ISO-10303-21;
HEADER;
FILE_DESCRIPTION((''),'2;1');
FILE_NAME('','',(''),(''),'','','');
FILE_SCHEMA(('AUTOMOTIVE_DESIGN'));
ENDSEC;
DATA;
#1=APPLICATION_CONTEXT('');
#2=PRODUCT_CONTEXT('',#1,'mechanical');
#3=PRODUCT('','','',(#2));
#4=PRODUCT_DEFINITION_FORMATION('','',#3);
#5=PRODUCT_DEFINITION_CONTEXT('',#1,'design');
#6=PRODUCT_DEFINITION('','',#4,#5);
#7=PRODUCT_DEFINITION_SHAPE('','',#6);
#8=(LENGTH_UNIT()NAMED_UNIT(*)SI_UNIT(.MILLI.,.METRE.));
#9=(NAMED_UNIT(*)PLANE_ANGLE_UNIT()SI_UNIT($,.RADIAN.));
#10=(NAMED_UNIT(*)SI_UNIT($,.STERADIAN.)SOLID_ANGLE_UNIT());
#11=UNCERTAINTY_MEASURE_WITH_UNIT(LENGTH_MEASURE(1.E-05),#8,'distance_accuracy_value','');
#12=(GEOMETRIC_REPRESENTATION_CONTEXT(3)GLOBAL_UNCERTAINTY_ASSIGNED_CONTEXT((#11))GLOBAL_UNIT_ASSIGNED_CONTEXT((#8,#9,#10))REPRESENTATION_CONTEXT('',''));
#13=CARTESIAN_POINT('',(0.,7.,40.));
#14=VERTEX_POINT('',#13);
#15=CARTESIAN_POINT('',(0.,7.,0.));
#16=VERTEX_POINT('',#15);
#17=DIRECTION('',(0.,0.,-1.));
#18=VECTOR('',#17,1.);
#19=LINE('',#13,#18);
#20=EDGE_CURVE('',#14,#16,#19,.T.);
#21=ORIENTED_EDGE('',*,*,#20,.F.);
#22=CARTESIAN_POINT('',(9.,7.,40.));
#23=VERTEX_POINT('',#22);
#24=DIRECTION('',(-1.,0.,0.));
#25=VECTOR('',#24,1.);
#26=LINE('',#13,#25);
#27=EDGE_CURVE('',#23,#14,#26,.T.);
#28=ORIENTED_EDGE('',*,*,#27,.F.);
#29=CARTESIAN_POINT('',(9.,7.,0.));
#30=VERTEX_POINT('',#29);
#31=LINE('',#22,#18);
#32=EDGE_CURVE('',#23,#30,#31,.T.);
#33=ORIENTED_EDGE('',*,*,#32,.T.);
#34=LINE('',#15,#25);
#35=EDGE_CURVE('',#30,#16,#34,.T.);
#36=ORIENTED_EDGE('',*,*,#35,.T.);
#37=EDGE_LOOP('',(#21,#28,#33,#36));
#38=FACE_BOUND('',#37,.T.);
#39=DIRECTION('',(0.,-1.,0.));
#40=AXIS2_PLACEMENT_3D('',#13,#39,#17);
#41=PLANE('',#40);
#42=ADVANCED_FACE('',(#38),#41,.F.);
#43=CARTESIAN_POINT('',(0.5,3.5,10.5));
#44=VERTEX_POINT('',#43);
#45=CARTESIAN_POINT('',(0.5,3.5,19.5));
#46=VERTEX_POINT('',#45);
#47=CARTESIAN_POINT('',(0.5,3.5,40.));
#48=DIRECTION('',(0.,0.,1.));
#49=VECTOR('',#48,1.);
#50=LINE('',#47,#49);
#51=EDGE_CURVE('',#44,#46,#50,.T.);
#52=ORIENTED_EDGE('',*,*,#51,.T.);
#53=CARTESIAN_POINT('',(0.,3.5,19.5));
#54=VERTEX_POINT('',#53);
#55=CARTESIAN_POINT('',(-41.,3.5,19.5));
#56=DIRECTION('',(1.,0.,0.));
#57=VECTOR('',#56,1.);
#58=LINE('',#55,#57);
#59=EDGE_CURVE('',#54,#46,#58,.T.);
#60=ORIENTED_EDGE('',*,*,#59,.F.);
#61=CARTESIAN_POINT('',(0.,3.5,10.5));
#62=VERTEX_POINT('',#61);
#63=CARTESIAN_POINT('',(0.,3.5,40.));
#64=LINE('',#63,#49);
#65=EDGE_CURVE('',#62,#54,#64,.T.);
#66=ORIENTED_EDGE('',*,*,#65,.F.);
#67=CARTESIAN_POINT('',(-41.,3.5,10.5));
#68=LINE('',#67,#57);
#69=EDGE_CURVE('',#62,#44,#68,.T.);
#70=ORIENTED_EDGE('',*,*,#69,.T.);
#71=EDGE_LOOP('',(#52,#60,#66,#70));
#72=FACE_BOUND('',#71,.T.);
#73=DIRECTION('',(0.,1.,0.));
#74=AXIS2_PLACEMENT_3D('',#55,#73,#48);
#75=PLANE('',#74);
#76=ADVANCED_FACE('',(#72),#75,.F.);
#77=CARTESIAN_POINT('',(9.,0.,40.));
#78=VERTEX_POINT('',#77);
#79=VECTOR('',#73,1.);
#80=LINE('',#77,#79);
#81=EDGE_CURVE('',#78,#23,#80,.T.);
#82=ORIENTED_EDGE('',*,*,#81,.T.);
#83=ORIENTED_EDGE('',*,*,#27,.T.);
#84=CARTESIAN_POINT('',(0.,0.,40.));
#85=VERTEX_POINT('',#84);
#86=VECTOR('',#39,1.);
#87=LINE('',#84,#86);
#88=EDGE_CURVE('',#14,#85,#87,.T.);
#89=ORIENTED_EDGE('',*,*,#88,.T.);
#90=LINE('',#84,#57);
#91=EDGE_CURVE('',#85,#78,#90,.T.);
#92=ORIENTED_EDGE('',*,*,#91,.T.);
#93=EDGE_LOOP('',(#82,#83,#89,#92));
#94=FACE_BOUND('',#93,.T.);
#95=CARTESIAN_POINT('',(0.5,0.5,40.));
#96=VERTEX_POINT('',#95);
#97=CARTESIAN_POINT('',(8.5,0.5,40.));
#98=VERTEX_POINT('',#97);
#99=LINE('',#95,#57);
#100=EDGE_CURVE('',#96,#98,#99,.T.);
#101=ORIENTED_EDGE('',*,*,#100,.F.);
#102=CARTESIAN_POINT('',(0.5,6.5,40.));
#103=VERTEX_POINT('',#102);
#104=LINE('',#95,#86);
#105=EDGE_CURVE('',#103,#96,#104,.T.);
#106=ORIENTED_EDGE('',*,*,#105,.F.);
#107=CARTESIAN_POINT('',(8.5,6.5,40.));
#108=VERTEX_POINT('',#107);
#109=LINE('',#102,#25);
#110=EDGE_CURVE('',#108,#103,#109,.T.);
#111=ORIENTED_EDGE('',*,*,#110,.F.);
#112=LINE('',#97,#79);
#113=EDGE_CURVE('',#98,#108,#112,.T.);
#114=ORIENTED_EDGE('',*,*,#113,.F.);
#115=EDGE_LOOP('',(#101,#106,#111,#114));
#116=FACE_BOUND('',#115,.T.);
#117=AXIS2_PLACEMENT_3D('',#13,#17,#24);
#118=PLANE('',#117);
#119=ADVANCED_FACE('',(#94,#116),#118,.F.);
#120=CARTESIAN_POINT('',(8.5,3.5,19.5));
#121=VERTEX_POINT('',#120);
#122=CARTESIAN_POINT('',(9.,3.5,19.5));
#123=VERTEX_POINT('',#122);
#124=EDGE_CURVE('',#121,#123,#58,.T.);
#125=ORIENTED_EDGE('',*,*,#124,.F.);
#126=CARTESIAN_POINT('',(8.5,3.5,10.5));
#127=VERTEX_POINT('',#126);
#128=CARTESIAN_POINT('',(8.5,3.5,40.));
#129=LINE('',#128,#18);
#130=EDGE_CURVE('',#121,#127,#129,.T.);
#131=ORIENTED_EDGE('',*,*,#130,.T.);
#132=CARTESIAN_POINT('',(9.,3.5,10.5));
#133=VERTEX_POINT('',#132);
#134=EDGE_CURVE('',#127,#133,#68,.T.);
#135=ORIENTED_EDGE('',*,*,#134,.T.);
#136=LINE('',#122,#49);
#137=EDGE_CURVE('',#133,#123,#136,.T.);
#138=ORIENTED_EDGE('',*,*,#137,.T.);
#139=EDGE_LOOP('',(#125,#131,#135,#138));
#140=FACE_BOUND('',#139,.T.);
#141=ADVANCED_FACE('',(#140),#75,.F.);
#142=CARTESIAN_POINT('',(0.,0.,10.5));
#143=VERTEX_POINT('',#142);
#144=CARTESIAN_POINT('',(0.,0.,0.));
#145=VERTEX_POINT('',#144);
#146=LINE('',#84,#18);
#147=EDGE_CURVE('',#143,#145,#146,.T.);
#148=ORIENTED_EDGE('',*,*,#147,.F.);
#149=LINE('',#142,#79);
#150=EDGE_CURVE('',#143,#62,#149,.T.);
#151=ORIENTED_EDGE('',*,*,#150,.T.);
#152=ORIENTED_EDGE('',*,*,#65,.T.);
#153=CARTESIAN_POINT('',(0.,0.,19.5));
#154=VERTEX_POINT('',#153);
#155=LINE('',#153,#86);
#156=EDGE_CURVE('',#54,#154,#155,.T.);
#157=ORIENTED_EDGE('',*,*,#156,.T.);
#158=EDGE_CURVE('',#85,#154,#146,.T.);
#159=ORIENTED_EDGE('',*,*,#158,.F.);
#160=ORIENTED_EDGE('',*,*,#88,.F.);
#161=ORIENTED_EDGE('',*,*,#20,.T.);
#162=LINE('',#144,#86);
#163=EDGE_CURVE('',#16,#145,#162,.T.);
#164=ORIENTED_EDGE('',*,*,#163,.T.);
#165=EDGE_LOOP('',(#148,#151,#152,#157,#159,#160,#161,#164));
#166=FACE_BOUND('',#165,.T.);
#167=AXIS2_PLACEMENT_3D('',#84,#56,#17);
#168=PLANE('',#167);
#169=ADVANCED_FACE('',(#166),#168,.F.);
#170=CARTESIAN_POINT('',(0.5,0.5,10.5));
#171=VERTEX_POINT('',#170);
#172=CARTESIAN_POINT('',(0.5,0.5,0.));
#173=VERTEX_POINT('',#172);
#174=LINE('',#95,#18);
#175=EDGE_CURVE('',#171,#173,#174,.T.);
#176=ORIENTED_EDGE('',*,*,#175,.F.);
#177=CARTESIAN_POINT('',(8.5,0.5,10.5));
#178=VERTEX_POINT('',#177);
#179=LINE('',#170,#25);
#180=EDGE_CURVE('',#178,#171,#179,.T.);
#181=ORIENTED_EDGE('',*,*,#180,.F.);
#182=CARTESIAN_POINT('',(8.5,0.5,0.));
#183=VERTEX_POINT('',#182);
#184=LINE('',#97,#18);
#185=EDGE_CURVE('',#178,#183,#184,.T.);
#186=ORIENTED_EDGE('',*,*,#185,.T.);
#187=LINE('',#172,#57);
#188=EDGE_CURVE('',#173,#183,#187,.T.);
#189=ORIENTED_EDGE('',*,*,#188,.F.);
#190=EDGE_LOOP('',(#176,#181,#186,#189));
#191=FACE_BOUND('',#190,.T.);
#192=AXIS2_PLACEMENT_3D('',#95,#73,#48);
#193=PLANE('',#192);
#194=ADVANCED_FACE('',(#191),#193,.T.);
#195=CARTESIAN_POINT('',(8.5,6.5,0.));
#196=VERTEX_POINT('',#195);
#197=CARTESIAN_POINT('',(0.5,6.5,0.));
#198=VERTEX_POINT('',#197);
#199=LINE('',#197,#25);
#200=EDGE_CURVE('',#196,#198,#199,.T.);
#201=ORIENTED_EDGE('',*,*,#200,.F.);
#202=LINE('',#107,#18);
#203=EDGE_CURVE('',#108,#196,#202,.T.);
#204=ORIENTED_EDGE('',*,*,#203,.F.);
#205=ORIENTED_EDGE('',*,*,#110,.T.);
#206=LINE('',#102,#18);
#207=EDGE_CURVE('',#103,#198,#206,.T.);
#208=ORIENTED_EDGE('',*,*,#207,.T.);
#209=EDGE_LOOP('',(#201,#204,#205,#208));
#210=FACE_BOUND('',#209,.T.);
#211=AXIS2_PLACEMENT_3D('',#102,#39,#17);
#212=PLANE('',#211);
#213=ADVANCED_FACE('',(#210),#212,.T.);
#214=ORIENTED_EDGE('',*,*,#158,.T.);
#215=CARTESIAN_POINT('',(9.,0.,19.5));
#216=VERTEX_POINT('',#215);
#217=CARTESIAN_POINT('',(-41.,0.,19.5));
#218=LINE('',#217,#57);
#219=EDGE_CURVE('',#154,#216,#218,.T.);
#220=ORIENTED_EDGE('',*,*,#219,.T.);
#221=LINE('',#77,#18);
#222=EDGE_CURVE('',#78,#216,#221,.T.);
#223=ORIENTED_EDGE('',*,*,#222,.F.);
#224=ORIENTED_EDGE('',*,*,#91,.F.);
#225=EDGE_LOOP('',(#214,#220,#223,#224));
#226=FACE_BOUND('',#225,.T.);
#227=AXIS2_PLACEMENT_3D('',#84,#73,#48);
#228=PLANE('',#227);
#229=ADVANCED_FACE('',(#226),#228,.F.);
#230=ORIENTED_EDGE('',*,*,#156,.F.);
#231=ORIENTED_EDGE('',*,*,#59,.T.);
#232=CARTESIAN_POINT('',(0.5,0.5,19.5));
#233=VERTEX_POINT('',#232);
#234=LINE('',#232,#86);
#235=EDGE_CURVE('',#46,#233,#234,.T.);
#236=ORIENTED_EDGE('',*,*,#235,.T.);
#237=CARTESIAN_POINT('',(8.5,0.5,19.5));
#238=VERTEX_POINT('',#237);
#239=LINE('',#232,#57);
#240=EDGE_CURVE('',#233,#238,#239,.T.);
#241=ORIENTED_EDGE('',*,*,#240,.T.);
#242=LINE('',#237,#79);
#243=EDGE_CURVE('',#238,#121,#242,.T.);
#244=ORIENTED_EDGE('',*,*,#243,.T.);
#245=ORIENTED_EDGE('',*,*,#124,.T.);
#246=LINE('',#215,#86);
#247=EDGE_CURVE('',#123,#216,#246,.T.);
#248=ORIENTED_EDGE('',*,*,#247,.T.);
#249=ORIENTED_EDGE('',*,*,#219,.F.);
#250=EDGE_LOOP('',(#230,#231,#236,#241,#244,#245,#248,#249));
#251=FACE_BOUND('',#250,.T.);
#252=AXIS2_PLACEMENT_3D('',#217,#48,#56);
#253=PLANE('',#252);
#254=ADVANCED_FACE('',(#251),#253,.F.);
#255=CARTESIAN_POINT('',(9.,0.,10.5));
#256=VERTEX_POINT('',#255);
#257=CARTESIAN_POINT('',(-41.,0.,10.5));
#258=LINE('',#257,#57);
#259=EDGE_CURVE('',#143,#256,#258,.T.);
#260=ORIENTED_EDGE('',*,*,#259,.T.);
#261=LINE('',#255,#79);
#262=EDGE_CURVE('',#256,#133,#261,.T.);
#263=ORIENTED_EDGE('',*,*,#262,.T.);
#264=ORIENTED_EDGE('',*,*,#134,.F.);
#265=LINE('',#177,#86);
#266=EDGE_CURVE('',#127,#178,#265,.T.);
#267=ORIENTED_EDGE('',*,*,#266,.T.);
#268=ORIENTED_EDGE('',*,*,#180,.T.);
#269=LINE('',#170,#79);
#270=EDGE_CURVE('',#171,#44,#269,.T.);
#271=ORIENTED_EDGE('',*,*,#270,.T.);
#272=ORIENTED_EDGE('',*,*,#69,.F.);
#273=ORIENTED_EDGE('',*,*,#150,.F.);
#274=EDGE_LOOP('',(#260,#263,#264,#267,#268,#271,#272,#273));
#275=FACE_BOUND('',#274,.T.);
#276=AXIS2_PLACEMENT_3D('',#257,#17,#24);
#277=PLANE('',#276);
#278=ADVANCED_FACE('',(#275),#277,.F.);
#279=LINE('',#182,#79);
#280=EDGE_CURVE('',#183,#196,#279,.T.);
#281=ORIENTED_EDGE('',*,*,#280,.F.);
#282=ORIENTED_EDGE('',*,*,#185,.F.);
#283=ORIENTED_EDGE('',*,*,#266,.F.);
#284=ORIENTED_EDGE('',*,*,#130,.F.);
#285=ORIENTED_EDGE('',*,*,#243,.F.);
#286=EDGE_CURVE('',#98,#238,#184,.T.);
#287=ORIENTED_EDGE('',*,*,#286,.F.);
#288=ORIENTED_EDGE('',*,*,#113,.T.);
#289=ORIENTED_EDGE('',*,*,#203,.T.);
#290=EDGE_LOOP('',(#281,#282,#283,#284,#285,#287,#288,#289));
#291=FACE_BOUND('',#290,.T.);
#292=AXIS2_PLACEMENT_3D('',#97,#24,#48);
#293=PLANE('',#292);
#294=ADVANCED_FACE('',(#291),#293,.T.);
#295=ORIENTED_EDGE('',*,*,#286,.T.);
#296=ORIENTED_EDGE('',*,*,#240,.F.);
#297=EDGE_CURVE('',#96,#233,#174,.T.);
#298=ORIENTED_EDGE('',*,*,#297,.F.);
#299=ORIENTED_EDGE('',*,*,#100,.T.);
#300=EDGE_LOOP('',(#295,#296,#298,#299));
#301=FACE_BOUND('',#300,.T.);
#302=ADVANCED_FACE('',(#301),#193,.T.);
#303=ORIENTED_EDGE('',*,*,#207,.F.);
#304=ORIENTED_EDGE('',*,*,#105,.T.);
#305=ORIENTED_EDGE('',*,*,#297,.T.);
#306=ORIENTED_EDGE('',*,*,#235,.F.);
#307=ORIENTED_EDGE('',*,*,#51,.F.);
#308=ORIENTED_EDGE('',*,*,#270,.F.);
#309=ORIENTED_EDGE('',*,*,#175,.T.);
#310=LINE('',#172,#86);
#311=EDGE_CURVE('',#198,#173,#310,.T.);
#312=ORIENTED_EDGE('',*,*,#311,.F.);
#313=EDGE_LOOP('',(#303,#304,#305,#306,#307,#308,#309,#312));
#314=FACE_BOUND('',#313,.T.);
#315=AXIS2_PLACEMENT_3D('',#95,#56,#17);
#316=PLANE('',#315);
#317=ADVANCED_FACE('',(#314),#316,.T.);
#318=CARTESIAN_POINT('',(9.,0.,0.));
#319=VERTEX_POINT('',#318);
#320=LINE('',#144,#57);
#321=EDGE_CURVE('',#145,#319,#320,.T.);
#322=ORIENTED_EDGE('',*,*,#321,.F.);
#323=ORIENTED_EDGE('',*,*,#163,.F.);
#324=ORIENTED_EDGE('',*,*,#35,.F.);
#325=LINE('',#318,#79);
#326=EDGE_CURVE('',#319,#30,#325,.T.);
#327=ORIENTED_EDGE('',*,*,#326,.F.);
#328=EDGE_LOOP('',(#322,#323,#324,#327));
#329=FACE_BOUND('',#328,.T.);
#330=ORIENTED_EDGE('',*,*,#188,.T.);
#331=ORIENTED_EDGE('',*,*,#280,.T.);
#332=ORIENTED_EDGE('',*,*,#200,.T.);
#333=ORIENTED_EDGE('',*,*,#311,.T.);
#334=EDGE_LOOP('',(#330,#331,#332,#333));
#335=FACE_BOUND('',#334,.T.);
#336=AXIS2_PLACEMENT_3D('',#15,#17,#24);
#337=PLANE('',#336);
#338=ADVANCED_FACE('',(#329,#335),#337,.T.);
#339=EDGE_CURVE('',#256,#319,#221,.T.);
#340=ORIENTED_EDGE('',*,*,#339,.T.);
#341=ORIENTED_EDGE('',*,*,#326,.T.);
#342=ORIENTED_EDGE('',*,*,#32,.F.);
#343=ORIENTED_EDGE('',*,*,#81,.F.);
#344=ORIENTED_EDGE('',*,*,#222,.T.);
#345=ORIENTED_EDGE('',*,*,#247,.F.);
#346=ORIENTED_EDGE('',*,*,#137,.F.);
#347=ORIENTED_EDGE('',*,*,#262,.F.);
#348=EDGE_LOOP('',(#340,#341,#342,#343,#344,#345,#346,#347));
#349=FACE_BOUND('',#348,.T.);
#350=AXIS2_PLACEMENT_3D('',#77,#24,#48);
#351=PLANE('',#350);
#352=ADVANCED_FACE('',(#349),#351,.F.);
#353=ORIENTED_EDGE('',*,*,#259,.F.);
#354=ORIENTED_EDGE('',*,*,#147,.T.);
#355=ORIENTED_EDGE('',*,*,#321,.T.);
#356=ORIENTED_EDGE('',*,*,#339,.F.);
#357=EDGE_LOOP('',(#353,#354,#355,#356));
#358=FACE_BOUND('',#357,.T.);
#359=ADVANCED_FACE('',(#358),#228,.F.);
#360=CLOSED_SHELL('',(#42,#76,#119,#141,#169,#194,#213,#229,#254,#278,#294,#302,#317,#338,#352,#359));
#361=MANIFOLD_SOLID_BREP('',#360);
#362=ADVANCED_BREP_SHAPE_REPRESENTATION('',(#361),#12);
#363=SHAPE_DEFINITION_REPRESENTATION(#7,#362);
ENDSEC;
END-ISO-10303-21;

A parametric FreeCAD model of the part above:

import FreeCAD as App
import Part
import Sketcher
from FreeCAD import Vector

doc = App.newDocument("Part")
body = doc.addObject("PartDesign::Body", "Body")

# Sketch on XY plane
sketch1 = body.newObject("Sketcher::SketchObject", "Sketch")
sketch1.AttachmentSupport = (doc.getObject("XY_Plane"), [""])
sketch1.MapMode = "FlatFace"
sketch1.addGeometry(Part.LineSegment(Vector(0, 7, 0), Vector(0, 0, 0)), False)
sketch1.addGeometry(Part.LineSegment(Vector(0, 0, 0), Vector(9, 0, 0)), False)
sketch1.addGeometry(Part.LineSegment(Vector(9, 0, 0), Vector(9, 7, 0)), False)
sketch1.addGeometry(Part.LineSegment(Vector(9, 7, 0), Vector(0, 7, 0)), False)
sketch1.addGeometry(Part.LineSegment(Vector(8.5, 0.5, 0), Vector(0.5, 0.5, 0)), False)
sketch1.addGeometry(Part.LineSegment(Vector(0.5, 0.5, 0), Vector(0.5, 6.5, 0)), False)
sketch1.addGeometry(Part.LineSegment(Vector(0.5, 6.5, 0), Vector(8.5, 6.5, 0)), False)
sketch1.addGeometry(Part.LineSegment(Vector(8.5, 6.5, 0), Vector(8.5, 0.5, 0)), False)
sketch1.addConstraint(Sketcher.Constraint("Coincident", 0, 2, 1, 1))
sketch1.addConstraint(Sketcher.Constraint("Coincident", 1, 2, 2, 1))
sketch1.addConstraint(Sketcher.Constraint("Coincident", 2, 2, 3, 1))
sketch1.addConstraint(Sketcher.Constraint("Coincident", 3, 2, 0, 1))
sketch1.addConstraint(Sketcher.Constraint("Coincident", 4, 2, 5, 1))
sketch1.addConstraint(Sketcher.Constraint("Coincident", 5, 2, 6, 1))
sketch1.addConstraint(Sketcher.Constraint("Coincident", 6, 2, 7, 1))
sketch1.addConstraint(Sketcher.Constraint("Coincident", 7, 2, 4, 1))
sketch1.addConstraint(Sketcher.Constraint("Vertical", 0))
sketch1.addConstraint(Sketcher.Constraint("Horizontal", 1))
sketch1.addConstraint(Sketcher.Constraint("Vertical", 2))
sketch1.addConstraint(Sketcher.Constraint("Horizontal", 3))
sketch1.addConstraint(Sketcher.Constraint("Horizontal", 4))
sketch1.addConstraint(Sketcher.Constraint("Vertical", 5))
sketch1.addConstraint(Sketcher.Constraint("Horizontal", 6))
sketch1.addConstraint(Sketcher.Constraint("Vertical", 7))
sketch1.addConstraint(Sketcher.Constraint("Coincident", 0, 2, -1, 1))
sketch1.addConstraint(Sketcher.Constraint("DistanceX", 1, 1, 1, 2, 9.0))
sketch1.addConstraint(Sketcher.Constraint("DistanceX", 4, 2, 4, 1, 8.0))
sketch1.addConstraint(Sketcher.Constraint("DistanceY", 0, 2, 0, 1, 7.0))
sketch1.addConstraint(Sketcher.Constraint("DistanceY", 5, 1, 5, 2, 6.0))
sketch1.addConstraint(Sketcher.Constraint("DistanceX", -1, 1, 4, 2, 0.5))
sketch1.addConstraint(Sketcher.Constraint("DistanceY", -1, 1, 4, 2, 0.5))
pad1 = body.newObject("PartDesign::Pad", "Pad")
pad1.Profile = sketch1
pad1.Length = 40

# Sketch on YZ plane
sketch2 = body.newObject("Sketcher::SketchObject", "Sketch001")
sketch2.AttachmentSupport = (doc.getObject("YZ_Plane"), [""])
sketch2.MapMode = "FlatFace"
sketch2.AttachmentOffset = App.Placement(Vector(0, 0, 9), App.Rotation())
sketch2.addGeometry(Part.LineSegment(Vector(3.5, 19.5, 0), Vector(0, 19.5, 0)), False)
sketch2.addGeometry(Part.LineSegment(Vector(0, 19.5, 0), Vector(0, 10.5, 0)), False)
sketch2.addGeometry(Part.LineSegment(Vector(0, 10.5, 0), Vector(3.5, 10.5, 0)), False)
sketch2.addGeometry(Part.LineSegment(Vector(3.5, 10.5, 0), Vector(3.5, 19.5, 0)), False)
sketch2.addConstraint(Sketcher.Constraint("Coincident", 0, 2, 1, 1))
sketch2.addConstraint(Sketcher.Constraint("Coincident", 1, 2, 2, 1))
sketch2.addConstraint(Sketcher.Constraint("Coincident", 2, 2, 3, 1))
sketch2.addConstraint(Sketcher.Constraint("Coincident", 3, 2, 0, 1))
sketch2.addConstraint(Sketcher.Constraint("Horizontal", 0))
sketch2.addConstraint(Sketcher.Constraint("Vertical", 1))
sketch2.addConstraint(Sketcher.Constraint("Horizontal", 2))
sketch2.addConstraint(Sketcher.Constraint("Vertical", 3))
sketch2.addConstraint(Sketcher.Constraint("PointOnObject", 0, 2, -2))
sketch2.addConstraint(Sketcher.Constraint("DistanceY", 1, 2, 1, 1, 9.0))
sketch2.addConstraint(Sketcher.Constraint("DistanceX", 0, 2, 0, 1, 3.5))
sketch2.addConstraint(Sketcher.Constraint("DistanceY", -1, 1, 0, 2, 19.5))
pocket1 = body.newObject("PartDesign::Pocket", "Pocket")
pocket1.Profile = sketch2
pocket1.Length = 50

doc.recompute()
